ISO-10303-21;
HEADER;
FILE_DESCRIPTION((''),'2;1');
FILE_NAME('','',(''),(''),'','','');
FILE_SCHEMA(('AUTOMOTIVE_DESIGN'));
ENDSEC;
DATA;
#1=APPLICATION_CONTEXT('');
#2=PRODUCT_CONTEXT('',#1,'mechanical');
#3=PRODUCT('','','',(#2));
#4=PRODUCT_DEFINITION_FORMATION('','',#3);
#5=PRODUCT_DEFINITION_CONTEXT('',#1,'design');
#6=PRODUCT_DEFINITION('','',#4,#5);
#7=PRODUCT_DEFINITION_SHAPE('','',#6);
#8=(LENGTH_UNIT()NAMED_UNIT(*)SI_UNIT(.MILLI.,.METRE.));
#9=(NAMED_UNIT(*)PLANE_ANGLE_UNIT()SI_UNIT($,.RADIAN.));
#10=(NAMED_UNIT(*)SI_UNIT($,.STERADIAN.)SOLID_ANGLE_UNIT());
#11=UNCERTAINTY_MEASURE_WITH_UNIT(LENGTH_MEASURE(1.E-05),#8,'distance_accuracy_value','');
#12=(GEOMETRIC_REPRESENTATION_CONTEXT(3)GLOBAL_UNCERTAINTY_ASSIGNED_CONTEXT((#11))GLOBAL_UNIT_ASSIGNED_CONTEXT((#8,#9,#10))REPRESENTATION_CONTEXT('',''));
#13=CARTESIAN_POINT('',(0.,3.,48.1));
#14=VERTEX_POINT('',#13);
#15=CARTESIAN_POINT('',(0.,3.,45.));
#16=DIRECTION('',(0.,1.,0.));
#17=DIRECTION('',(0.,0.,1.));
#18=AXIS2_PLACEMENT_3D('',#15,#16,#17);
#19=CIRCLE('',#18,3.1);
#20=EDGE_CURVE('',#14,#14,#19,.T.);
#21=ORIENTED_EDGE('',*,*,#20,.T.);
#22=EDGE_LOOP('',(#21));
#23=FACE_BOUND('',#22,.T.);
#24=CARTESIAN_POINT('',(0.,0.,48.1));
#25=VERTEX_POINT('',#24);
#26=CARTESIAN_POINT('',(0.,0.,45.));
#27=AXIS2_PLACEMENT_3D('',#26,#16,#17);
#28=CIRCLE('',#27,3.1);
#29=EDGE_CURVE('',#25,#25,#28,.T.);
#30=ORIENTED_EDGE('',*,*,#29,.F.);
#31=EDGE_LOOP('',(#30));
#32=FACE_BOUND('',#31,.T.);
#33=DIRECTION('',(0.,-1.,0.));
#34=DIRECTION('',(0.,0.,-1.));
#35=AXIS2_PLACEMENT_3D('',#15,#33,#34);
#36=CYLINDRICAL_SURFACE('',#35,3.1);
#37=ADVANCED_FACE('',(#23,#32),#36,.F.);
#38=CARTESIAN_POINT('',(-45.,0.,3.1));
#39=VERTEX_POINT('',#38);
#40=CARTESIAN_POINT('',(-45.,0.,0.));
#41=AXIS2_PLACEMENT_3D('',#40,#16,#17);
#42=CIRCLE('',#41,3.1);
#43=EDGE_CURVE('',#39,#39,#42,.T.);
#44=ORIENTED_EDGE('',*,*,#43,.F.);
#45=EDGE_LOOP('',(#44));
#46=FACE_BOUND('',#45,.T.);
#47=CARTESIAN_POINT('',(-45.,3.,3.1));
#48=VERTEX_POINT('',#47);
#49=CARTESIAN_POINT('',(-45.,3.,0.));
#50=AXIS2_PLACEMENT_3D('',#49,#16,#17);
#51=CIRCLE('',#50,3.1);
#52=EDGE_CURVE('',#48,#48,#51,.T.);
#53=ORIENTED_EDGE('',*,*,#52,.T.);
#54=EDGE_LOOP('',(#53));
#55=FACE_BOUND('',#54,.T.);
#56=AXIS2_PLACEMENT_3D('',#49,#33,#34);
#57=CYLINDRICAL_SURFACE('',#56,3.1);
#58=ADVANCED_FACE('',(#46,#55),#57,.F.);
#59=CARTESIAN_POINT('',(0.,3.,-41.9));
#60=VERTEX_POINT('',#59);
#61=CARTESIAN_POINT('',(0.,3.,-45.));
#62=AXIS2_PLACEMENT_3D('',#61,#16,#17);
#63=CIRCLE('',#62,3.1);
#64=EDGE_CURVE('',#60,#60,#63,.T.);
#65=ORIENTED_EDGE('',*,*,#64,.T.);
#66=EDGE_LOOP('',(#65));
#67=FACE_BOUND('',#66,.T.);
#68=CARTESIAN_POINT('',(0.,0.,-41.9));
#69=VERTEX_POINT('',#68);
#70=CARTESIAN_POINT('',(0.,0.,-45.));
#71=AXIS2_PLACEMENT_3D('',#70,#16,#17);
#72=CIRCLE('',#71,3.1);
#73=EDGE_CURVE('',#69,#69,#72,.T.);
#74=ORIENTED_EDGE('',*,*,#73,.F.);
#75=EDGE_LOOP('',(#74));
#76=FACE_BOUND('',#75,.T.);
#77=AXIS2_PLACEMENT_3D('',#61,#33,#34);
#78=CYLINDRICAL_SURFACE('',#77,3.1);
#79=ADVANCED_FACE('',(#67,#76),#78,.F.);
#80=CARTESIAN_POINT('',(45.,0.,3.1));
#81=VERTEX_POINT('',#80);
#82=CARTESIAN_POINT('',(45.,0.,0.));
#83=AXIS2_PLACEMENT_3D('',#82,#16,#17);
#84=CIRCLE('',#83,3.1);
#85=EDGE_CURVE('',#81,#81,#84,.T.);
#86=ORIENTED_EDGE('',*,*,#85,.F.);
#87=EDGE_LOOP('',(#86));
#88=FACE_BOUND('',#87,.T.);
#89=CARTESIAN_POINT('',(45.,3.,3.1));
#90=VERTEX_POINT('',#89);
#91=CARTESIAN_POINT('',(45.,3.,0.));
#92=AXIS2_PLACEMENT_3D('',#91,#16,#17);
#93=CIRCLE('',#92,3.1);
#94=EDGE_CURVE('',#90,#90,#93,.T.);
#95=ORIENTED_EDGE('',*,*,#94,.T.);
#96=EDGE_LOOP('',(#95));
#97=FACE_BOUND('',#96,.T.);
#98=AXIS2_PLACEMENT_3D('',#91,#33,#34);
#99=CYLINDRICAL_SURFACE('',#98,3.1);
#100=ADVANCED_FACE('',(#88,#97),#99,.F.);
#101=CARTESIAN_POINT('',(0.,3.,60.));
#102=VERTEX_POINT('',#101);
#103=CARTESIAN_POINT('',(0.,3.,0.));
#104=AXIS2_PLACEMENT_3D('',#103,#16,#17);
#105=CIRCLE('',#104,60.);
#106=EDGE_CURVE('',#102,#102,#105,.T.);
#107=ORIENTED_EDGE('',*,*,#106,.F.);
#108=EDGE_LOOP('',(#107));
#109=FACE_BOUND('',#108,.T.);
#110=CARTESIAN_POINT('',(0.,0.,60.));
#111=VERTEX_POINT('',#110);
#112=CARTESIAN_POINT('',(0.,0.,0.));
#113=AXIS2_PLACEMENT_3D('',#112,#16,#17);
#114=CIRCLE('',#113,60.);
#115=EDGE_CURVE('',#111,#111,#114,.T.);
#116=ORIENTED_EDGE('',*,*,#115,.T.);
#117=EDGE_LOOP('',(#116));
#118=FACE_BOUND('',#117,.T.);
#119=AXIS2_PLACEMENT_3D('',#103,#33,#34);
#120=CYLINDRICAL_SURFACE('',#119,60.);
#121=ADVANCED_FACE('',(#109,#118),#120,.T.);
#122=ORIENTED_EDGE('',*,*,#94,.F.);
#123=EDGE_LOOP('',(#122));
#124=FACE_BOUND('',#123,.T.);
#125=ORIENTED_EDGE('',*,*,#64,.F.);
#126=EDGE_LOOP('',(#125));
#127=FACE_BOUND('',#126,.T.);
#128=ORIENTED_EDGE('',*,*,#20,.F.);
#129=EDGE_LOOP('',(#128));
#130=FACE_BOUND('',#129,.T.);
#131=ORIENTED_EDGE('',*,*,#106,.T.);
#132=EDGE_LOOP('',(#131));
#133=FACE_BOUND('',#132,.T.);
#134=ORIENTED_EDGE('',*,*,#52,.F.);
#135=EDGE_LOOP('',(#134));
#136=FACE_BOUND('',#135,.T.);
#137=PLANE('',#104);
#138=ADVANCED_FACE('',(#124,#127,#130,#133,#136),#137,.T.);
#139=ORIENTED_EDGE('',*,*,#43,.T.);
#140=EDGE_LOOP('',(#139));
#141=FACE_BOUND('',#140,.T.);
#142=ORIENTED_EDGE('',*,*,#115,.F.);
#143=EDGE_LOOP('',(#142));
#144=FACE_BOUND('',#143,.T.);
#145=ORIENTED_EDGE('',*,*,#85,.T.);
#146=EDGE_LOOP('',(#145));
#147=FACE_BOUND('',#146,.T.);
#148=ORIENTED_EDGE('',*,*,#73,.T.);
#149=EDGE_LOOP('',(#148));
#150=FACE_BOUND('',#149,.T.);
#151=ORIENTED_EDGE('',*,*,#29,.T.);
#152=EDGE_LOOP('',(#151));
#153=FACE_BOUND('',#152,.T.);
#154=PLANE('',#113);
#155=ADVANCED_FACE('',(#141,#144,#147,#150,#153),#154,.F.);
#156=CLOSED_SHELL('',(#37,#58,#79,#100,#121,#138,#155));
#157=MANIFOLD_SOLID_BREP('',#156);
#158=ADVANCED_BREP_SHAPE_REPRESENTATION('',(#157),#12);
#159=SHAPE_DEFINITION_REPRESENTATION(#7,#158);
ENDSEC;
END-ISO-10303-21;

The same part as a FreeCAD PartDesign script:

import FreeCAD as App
import Part
import Sketcher

V = App.Vector
Q = App.Units.Quantity

doc = App.newDocument("Part")
body = doc.addObject("PartDesign::Body", "Body")

# Sketch on XZ plane
sketch1 = body.newObject("Sketcher::SketchObject", "Sketch")
sketch1.AttachmentSupport = (doc.getObject("XZ_Plane"), [""])
sketch1.MapMode = "FlatFace"
sketch1.addGeometry([
    Part.Circle(V(0, 0, 0), V(0, 0, 1), 60),  # 0
    Part.Circle(V(0, -45, 0), V(0, 0, 1), 3.1),  # 1
    Part.Circle(V(-45, 0, 0), V(0, 0, 1), 3.1),  # 2
    Part.Circle(V(45, 0, 0), V(0, 0, 1), 3.1),  # 3
    Part.Circle(V(0, 45, 0), V(0, 0, 1), 3.1),  # 4
], False)
sketch1.addConstraint([
    Sketcher.Constraint("Coincident", 0, 3, -1, 1),
    Sketcher.Constraint("Equal", 1, 2),
    Sketcher.Constraint("Equal", 2, 3),
    Sketcher.Constraint("Equal", 3, 4),
    Sketcher.Constraint("Symmetric", 2, 3, 3, 3, -1, 1),
    Sketcher.Constraint("Symmetric", 1, 3, 4, 3, -1, 1),
    Sketcher.Constraint("PointOnObject", 1, 3, -2),
    Sketcher.Constraint("PointOnObject", 2, 3, -1),
    Sketcher.Constraint("Diameter", 0, Q("120 mm")),
    Sketcher.Constraint("Diameter", 1, Q("6.2 mm")),
    Sketcher.Constraint("DistanceY", 1, 3, -1, 1, Q("45 mm")),
    Sketcher.Constraint("DistanceX", 2, 3, -1, 1, Q("45 mm")),
])
pad1 = body.newObject("PartDesign::Pad", "Pad")
pad1.Profile = sketch1
pad1.Length = 3
pad1.Reversed = True

doc.recompute()
